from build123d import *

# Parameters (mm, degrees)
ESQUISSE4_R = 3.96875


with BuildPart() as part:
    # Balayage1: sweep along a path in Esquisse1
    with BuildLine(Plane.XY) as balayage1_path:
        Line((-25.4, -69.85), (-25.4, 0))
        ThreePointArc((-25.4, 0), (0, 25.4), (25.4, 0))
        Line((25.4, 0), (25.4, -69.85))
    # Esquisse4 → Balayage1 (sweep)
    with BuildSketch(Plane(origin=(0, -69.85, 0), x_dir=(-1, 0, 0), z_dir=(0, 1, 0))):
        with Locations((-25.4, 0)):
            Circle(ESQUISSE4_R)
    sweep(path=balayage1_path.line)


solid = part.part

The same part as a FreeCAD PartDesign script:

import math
import FreeCAD as App
import Part
import Sketcher

V = App.Vector
Q = App.Units.Quantity

doc = App.newDocument("Part")
params = doc.addObject("Spreadsheet::Sheet", "Params")
for row, (alias, value) in enumerate([
    ("sketch1_diameter", "0.3125 in"),
    ("sketch2_radius", "1 in"),
    ("sketch2_height", "2.75 in"),
], start=1):
    params.set(f"A{row}", alias)
    params.set(f"B{row}", "=" + value)
    params.setAlias(f"B{row}", alias)

body = doc.addObject("PartDesign::Body", "Body")

sketch1 = doc.addObject("Sketcher::SketchObject", "Sketch")
body.addObject(sketch1)
sketch1.AttachmentSupport = (doc.XZ_Plane, [""])
sketch1.MapMode = "FlatFace"
sketch1.AttachmentOffset = App.Placement(V(0, 0, 2.75 * 25.4), App.Rotation())
sketch1.addGeometry(Part.Circle(V(25.4, 0, 0), V(0, 0, 1), 4), False)
sketch1.addConstraint(Sketcher.Constraint("PointOnObject", 0, 3, -1))
sketch1.addConstraint(Sketcher.Constraint("Diameter", 0, Q("0.3125 in")))
sketch1.addConstraint(Sketcher.Constraint("DistanceX", -1, 1, 0, 3, Q("1 in")))
sketch1.setExpression("Constraints[1]", "Params.sketch1_diameter")

sketch2 = doc.addObject("Sketcher::SketchObject", "Sketch001")
body.addObject(sketch2)
sketch2.AttachmentSupport = (doc.XY_Plane, [""])
sketch2.MapMode = "FlatFace"
sketch2.addGeometry(Part.LineSegment(V(-25, -70, 0), V(-25, 0, 0)), False)
sketch2.addGeometry(Part.ArcOfCircle(Part.Circle(V(0, 0, 0), V(0, 0, 1), 25), math.radians(0), math.radians(180)), False)
sketch2.addGeometry(Part.LineSegment(V(25, 0, 0), V(25, -70, 0)), False)
sketch2.addConstraint(Sketcher.Constraint("Tangent", 0, 2, 1, 2))
sketch2.addConstraint(Sketcher.Constraint("Tangent", 1, 1, 2, 1))
sketch2.addConstraint(Sketcher.Constraint("Vertical", 0))
sketch2.addConstraint(Sketcher.Constraint("Vertical", 2))
sketch2.addConstraint(Sketcher.Constraint("Coincident", 1, 3, -1, 1))
sketch2.addConstraint(Sketcher.Constraint("Horizontal", 0, 1, 2, 2))
sketch2.addConstraint(Sketcher.Constraint("Radius", 1, Q("1 in")))
sketch2.addConstraint(Sketcher.Constraint("DistanceY", 0, 1, 0, 2, Q("2.75 in")))
sketch2.setExpression("Constraints[6]", "Params.sketch2_radius")
sketch2.setExpression("Constraints[7]", "Params.sketch2_height")
doc.recompute()

additivepipe = doc.addObject("PartDesign::AdditivePipe", "AdditivePipe")
body.addObject(additivepipe)
additivepipe.Profile = sketch1
additivepipe.Spine = (sketch2, ["Edge1", "Edge2", "Edge3"])

doc.recompute()
